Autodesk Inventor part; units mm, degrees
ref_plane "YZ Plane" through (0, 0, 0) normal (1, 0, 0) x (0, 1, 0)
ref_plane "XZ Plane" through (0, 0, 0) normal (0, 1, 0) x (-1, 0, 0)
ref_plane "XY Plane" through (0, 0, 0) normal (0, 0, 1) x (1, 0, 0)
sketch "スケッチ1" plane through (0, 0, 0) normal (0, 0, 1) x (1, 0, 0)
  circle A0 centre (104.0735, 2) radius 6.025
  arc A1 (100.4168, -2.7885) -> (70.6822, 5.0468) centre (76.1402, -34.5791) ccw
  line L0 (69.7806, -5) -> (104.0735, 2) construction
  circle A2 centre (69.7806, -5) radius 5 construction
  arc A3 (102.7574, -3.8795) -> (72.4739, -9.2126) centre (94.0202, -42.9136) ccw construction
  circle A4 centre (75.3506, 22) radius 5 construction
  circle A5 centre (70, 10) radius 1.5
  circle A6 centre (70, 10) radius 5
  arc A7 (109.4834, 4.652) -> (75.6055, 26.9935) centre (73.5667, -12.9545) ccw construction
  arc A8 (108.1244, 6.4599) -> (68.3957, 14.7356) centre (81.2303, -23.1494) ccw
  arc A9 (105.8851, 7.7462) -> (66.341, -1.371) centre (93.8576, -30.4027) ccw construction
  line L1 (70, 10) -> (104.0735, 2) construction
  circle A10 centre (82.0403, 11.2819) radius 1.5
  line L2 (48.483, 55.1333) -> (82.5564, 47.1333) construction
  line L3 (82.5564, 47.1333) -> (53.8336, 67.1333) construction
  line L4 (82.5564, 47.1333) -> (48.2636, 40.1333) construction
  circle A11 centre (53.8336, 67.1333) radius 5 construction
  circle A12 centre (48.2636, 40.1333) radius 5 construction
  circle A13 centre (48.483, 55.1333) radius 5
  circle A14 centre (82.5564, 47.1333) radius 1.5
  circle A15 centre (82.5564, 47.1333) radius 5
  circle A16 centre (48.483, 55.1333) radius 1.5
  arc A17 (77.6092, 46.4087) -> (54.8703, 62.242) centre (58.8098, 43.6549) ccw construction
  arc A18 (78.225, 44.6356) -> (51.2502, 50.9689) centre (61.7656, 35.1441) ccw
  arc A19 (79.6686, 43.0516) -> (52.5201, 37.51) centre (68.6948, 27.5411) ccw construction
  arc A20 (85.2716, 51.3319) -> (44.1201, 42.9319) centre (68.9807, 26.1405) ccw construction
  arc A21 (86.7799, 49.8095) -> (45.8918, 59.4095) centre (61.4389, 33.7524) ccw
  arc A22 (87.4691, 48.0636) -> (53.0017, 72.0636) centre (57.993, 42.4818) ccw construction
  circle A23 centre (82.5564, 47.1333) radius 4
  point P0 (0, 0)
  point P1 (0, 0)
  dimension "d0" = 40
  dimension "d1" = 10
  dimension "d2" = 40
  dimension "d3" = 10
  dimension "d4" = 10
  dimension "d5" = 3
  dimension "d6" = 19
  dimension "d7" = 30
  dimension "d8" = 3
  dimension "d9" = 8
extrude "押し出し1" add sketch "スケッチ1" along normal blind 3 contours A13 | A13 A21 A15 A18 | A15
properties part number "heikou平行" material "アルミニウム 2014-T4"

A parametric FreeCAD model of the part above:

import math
import FreeCAD as App
import Part
import Sketcher
from FreeCAD import Vector

doc = App.newDocument("Part")
body = doc.addObject("PartDesign::Body", "Body")

# Sketch on XY plane
sketch1 = body.newObject("Sketcher::SketchObject", "Sketch")
sketch1.AttachmentSupport = (doc.getObject("XY_Plane"), [""])
sketch1.MapMode = "FlatFace"
sketch1.addGeometry([
    Part.ArcOfCircle(Part.Circle(Vector(48.5, 55.1, 0), Vector(0, 0, 1), 5), math.radians(121), math.radians(304)),  # 0
    Part.ArcOfCircle(Part.Circle(Vector(61.8, 35.1, 0), Vector(0, 0, 1), 19), math.radians(30), math.radians(124)),  # 1
    Part.ArcOfCircle(Part.Circle(Vector(82.6, 47.1, 0), Vector(0, 0, 1), 5), math.radians(-150), math.radians(32)),  # 2
    Part.ArcOfCircle(Part.Circle(Vector(61.4, 33.8, 0), Vector(0, 0, 1), 30), math.radians(32), math.radians(121)),  # 3
    Part.Circle(Vector(48.5, 55.1, 0), Vector(0, 0, 1), 1.5),  # 4
    Part.Circle(Vector(82.6, 47.1, 0), Vector(0, 0, 1), 4),  # 5
], False)
sketch1.addConstraint([
    Sketcher.Constraint("Tangent", 0, 2, 1, 2),
    Sketcher.Constraint("Tangent", 1, 1, 2, 1),
    Sketcher.Constraint("Tangent", 2, 2, 3, 1),
    Sketcher.Constraint("Tangent", 3, 2, 0, 1),
    Sketcher.Constraint("Coincident", 4, 3, 0, 3),
    Sketcher.Constraint("Coincident", 5, 3, 2, 3),
    Sketcher.Constraint("Equal", 0, 2),
    Sketcher.Constraint("Diameter", 4, 3.0),
    Sketcher.Constraint("Diameter", 5, 8.0),
    Sketcher.Constraint("Radius", 0, 5.0),
    Sketcher.Constraint("Radius", 1, 19.0),
    Sketcher.Constraint("Radius", 3, 30.0),
    Sketcher.Constraint("DistanceY", 2, 3, 0, 3, 8.0),
    Sketcher.Constraint("DistanceX", -1, 1, 2, 2, 86.78),
    Sketcher.Constraint("DistanceX", -1, 1, 0, 3, 48.483),
    Sketcher.Constraint("DistanceY", -1, 1, 1, 3, 35.144),
])
pad1 = body.newObject("PartDesign::Pad", "Pad")
pad1.Profile = sketch1
pad1.Length = 3

doc.recompute()
